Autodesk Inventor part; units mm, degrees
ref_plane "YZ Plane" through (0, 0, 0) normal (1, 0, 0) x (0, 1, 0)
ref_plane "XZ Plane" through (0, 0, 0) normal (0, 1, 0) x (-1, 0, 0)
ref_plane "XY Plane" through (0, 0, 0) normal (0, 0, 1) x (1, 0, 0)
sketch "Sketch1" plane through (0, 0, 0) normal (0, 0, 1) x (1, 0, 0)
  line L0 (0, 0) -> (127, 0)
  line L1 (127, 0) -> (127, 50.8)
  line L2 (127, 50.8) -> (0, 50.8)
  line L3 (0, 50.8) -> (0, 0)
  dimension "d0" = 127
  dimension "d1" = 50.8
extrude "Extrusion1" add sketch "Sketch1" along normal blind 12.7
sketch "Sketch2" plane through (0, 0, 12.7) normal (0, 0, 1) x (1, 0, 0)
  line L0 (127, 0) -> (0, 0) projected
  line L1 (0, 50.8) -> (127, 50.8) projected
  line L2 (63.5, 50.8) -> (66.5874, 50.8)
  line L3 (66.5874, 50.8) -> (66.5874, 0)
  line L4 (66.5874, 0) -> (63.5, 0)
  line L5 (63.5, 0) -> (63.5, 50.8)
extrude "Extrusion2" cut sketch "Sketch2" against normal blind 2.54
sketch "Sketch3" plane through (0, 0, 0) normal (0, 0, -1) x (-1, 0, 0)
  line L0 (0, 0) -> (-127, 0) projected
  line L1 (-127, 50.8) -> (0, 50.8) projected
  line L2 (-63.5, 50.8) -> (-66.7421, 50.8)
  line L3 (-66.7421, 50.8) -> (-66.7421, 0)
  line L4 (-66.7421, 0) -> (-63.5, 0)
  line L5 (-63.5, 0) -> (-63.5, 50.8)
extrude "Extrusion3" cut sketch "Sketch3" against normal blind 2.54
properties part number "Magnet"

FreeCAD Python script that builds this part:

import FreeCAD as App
import Part
import Sketcher
Q = App.Units.Quantity


def add_polygon(sketch, points):
    """Adds a closed chain of lines whose ends are joined by coincident constraints."""
    first, n = sketch.GeometryCount, len(points)
    for a, b in zip(points, points[1:] + points[:1]):
        sketch.addGeometry(Part.LineSegment(App.Vector(*a, 0), App.Vector(*b, 0)), False)
    for i in range(n):
        sketch.addConstraint(Sketcher.Constraint("Coincident", first + i, 2, first + (i + 1) % n, 1))

doc = App.newDocument("Part")
params = doc.addObject("Spreadsheet::Sheet", "Params")
for row, (alias, value) in enumerate([
    ("sketch1_width", "5 in"),
    ("sketch1_height", "2 in"),
    ("pad1_length", "0.5 in"),
    ("sketch2_height", "2 in"),
    ("pocket1_length", "0.1 in"),
    ("sketch3_height", "2 in"),
    ("pocket2_length", "0.1 in"),
], start=1):
    params.set(f"A{row}", alias)
    params.set(f"B{row}", "=" + value)
    params.setAlias(f"B{row}", alias)

body = doc.addObject("PartDesign::Body", "Body")

# Sketch on XY plane
sketch1 = body.newObject("Sketcher::SketchObject", "Sketch")
sketch1.AttachmentSupport = (doc.getObject("XY_Plane"), [""])
sketch1.MapMode = "FlatFace"
add_polygon(sketch1, [(0, 51), (0, 0), (127, 0), (127, 51)])  # lines 0-3
sketch1.addConstraint([
    Sketcher.Constraint("Vertical", 0),
    Sketcher.Constraint("Horizontal", 1),
    Sketcher.Constraint("Vertical", 2),
    Sketcher.Constraint("Horizontal", 3),
    Sketcher.Constraint("Coincident", 0, 2, -1, 1),
    Sketcher.Constraint("DistanceX", 1, 1, 1, 2, Q("5 in")),
    Sketcher.Constraint("DistanceY", 0, 2, 0, 1, Q("2 in")),
])
sketch1.setExpression("Constraints[9]", "Params.sketch1_width")
sketch1.setExpression("Constraints[10]", "Params.sketch1_height")
pad1 = body.newObject("PartDesign::Pad", "Pad")
pad1.Profile = sketch1
pad1.setExpression("Length", "Params.pad1_length")

# Sketch on XY plane
sketch2 = body.newObject("Sketcher::SketchObject", "Sketch001")
sketch2.AttachmentSupport = (doc.getObject("XY_Plane"), [""])
sketch2.MapMode = "FlatFace"
sketch2.AttachmentOffset = App.Placement(App.Vector(0, 0, 0.5 * 25.4), App.Rotation())
add_polygon(sketch2, [(63.5, 0), (66.6, 0), (66.6, 50.8), (63.5, 50.8)])  # lines 0-3
sketch2.addConstraint([
    Sketcher.Constraint("Horizontal", 0),
    Sketcher.Constraint("Vertical", 1),
    Sketcher.Constraint("Horizontal", 2),
    Sketcher.Constraint("Vertical", 3),
    Sketcher.Constraint("PointOnObject", 0, 2, -1),
    Sketcher.Constraint("DistanceY", 1, 1, 1, 2, Q("2 in")),
    Sketcher.Constraint("DistanceX", -1, 1, 2, 2, Q("2.5 in")),
    Sketcher.Constraint("DistanceX", 0, 1, 0, 2, Q("3.0874 mm")),
])
sketch2.setExpression("Constraints[9]", "Params.sketch2_height")
pocket1 = body.newObject("PartDesign::Pocket", "Pocket")
pocket1.Profile = sketch2
pocket1.setExpression("Length", "Params.pocket1_length")

# Sketch on XY plane
sketch3 = body.newObject("Sketcher::SketchObject", "Sketch002")
sketch3.AttachmentSupport = (doc.getObject("XY_Plane"), [""])
sketch3.MapMode = "FlatFace"
add_polygon(sketch3, [(66.7, 0), (63.5, 0), (63.5, 50.8), (66.7, 50.8)])  # lines 0-3
sketch3.addConstraint([
    Sketcher.Constraint("Horizontal", 0),
    Sketcher.Constraint("Vertical", 1),
    Sketcher.Constraint("Horizontal", 2),
    Sketcher.Constraint("Vertical", 3),
    Sketcher.Constraint("PointOnObject", 0, 2, -1),
    Sketcher.Constraint("DistanceY", 1, 1, 1, 2, Q("2 in")),
    Sketcher.Constraint("DistanceX", -1, 1, 0, 2, Q("2.5 in")),
    Sketcher.Constraint("DistanceX", 0, 2, 0, 1, Q("3.242 mm")),
])
sketch3.setExpression("Constraints[9]", "Params.sketch3_height")
pocket2 = body.newObject("PartDesign::Pocket", "Pocket001")
pocket2.Profile = sketch3
pocket2.setExpression("Length", "Params.pocket2_length")
pocket2.Reversed = True

doc.recompute()
